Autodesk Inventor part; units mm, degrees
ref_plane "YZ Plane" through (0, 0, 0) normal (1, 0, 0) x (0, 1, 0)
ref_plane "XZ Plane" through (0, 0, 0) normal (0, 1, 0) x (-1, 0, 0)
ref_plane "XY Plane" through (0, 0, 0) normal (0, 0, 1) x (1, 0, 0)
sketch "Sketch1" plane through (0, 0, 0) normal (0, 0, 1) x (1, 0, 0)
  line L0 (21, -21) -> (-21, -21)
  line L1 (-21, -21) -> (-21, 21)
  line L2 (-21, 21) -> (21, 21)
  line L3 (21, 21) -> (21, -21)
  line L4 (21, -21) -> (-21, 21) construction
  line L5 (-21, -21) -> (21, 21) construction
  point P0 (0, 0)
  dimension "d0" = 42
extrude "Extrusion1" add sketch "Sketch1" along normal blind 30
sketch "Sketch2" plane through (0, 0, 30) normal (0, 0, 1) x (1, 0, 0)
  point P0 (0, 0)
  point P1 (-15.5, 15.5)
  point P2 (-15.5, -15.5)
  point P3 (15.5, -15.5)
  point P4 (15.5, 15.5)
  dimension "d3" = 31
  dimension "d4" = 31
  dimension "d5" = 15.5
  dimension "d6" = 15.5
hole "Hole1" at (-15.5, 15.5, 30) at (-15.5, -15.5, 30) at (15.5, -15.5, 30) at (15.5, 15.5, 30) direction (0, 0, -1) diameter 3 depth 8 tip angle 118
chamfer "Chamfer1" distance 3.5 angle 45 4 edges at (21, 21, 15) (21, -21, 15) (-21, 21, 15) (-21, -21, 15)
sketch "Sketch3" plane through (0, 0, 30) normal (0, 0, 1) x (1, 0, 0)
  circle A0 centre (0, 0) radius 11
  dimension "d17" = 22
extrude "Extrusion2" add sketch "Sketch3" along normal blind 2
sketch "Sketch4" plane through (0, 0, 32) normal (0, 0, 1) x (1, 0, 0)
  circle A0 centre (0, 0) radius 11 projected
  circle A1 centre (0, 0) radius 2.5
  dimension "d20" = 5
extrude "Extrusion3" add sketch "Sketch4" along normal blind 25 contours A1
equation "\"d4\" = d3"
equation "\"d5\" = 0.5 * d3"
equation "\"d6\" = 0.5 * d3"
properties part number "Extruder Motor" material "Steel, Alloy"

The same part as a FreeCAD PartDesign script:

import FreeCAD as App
import Part
import Sketcher


def edges_at(feature, points):
    """Names of the edges that pass closest to the given points."""
    edges = feature.Shape.Edges
    near = lambda p: min(range(len(edges)), key=lambda i: edges[i].distToShape(Part.Vertex(*p))[0])
    return sorted({f"Edge{near(p) + 1}" for p in points})

doc = App.newDocument("Part")
body = doc.addObject("PartDesign::Body", "Body")

# Sketch on XY plane
sketch1 = body.newObject("Sketcher::SketchObject", "Sketch")
sketch1.AttachmentSupport = (doc.getObject("XY_Plane"), [""])
sketch1.MapMode = "FlatFace"
sketch1.addGeometry([
    Part.LineSegment(App.Vector(-21, -21, 0), App.Vector(21, -21, 0)),
    Part.LineSegment(App.Vector(21, -21, 0), App.Vector(21, 21, 0)),
    Part.LineSegment(App.Vector(21, 21, 0), App.Vector(-21, 21, 0)),
    Part.LineSegment(App.Vector(-21, 21, 0), App.Vector(-21, -21, 0)),
], False)
sketch1.addConstraint([
    Sketcher.Constraint("Coincident", 0, 2, 1, 1),
    Sketcher.Constraint("Coincident", 1, 2, 2, 1),
    Sketcher.Constraint("Coincident", 2, 2, 3, 1),
    Sketcher.Constraint("Coincident", 3, 2, 0, 1),
    Sketcher.Constraint("Horizontal", 0),
    Sketcher.Constraint("Vertical", 1),
    Sketcher.Constraint("Horizontal", 2),
    Sketcher.Constraint("Vertical", 3),
    Sketcher.Constraint("Symmetric", 0, 2, 2, 2, -1, 1),
    Sketcher.Constraint("Equal", 2, 1),
    Sketcher.Constraint("DistanceX", 0, 1, 0, 2, 42.0),
])
pad1 = body.newObject("PartDesign::Pad", "Pad")
pad1.Profile = sketch1
pad1.Length = 30

# Sketch on XY plane
sketch2 = body.newObject("Sketcher::SketchObject", "Sketch001")
sketch2.AttachmentSupport = (doc.getObject("XY_Plane"), [""])
sketch2.MapMode = "FlatFace"
sketch2.AttachmentOffset = App.Placement(App.Vector(0, 0, 30), App.Rotation())
sketch2.addGeometry([
    Part.Circle(App.Vector(-15.5, 15.5, 0), App.Vector(0, 0, 1), 1.5),
    Part.Circle(App.Vector(-15.5, -15.5, 0), App.Vector(0, 0, 1), 1.5),
    Part.Circle(App.Vector(15.5, -15.5, 0), App.Vector(0, 0, 1), 1.5),
    Part.Circle(App.Vector(15.5, 15.5, 0), App.Vector(0, 0, 1), 1.5),
], False)
sketch2.addConstraint([
    Sketcher.Constraint("Equal", 0, 1),
    Sketcher.Constraint("Equal", 1, 2),
    Sketcher.Constraint("Equal", 2, 3),
    Sketcher.Constraint("Symmetric", 0, 3, 2, 3, -1, 1),
    Sketcher.Constraint("Symmetric", 1, 3, 3, 3, -1, 1),
    Sketcher.Constraint("Symmetric", 1, 3, 2, 3, -2),
    Sketcher.Constraint("Diameter", 0, 3.0),
    Sketcher.Constraint("DistanceY", 1, 3, 0, 3, 31.0),
    Sketcher.Constraint("DistanceX", 1, 3, 2, 3, 31.0),
])
doc.recompute()
hole = body.newObject("PartDesign::Hole", "Hole")
hole.Profile = sketch2
hole.ThreadType = "None"
hole.Diameter = 3
hole.DepthType = "Dimension"
hole.Depth = 8
hole.DrillPoint = "Angled"
hole.DrillPointAngle = 118
doc.recompute()

chamfer = body.newObject("PartDesign::Chamfer", "Chamfer")
chamfer.Base = (hole, edges_at(hole, [
    (21, 21, 15),
    (21, -21, 15),
    (-21, 21, 15),
    (-21, -21, 15),
]))
chamfer.Size = 3.5

# Sketch on XY plane
sketch3 = body.newObject("Sketcher::SketchObject", "Sketch002")
sketch3.AttachmentSupport = (doc.getObject("XY_Plane"), [""])
sketch3.MapMode = "FlatFace"
sketch3.AttachmentOffset = App.Placement(App.Vector(0, 0, 30), App.Rotation())
sketch3.addGeometry(Part.Circle(App.Vector(0, 0, 0), App.Vector(0, 0, 1), 11), False)
sketch3.addConstraint([
    Sketcher.Constraint("Coincident", 0, 3, -1, 1),
    Sketcher.Constraint("Diameter", 0, 22.0),
])
pad2 = body.newObject("PartDesign::Pad", "Pad001")
pad2.Profile = sketch3
pad2.Length = 2

# Sketch on XY plane
sketch4 = body.newObject("Sketcher::SketchObject", "Sketch003")
sketch4.AttachmentSupport = (doc.getObject("XY_Plane"), [""])
sketch4.MapMode = "FlatFace"
sketch4.AttachmentOffset = App.Placement(App.Vector(0, 0, 32), App.Rotation())
sketch4.addGeometry(Part.Circle(App.Vector(0, 0, 0), App.Vector(0, 0, 1), 2.5), False)
sketch4.addConstraint([
    Sketcher.Constraint("Coincident", 0, 3, -1, 1),
    Sketcher.Constraint("Diameter", 0, 5.0),
])
pad3 = body.newObject("PartDesign::Pad", "Pad002")
pad3.Profile = sketch4
pad3.Length = 25

doc.recompute()
